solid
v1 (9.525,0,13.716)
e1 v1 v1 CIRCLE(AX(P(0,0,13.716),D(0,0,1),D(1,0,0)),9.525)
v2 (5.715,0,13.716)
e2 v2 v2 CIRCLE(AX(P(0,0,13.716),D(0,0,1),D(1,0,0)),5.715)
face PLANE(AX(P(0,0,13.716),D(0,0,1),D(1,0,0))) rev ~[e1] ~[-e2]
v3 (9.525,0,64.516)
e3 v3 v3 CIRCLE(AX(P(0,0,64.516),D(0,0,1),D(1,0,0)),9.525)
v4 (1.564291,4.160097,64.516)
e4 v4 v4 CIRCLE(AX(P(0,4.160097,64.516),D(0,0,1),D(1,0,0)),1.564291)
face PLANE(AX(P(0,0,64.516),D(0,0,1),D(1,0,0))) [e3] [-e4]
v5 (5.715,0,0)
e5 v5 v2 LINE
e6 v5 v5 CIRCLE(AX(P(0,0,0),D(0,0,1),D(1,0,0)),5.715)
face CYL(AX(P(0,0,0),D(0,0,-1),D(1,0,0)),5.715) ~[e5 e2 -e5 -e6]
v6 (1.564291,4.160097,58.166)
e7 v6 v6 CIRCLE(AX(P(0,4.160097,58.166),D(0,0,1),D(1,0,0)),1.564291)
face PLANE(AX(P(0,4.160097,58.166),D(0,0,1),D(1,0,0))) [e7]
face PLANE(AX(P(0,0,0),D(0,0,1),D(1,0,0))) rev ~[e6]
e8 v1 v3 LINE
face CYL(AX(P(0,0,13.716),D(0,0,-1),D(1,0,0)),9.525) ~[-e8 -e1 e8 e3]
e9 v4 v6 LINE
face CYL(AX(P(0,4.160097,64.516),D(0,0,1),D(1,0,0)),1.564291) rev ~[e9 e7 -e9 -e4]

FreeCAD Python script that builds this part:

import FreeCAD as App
import Part
import Sketcher
from FreeCAD import Vector
Q = App.Units.Quantity

doc = App.newDocument("Part")
body = doc.addObject("PartDesign::Body", "Body")

sketch1 = body.newObject("Sketcher::SketchObject", "Sketch")
sketch1.AttachmentSupport = (doc.getObject("XY_Plane"), [""])
sketch1.MapMode = "FlatFace"
sketch1.addGeometry(Part.Circle(Vector(0, 0, 0), Vector(0, 0, 1), 6), False)
sketch1.addConstraint(Sketcher.Constraint("Coincident", 0, 3, -1, 1))
sketch1.addConstraint(Sketcher.Constraint("Diameter", 0, Q("0.45 in")))
pad1 = body.newObject("PartDesign::Pad", "Pad")
pad1.Profile = sketch1
pad1.Length = Q("0.54 in")

sketch2 = body.newObject("Sketcher::SketchObject", "Sketch001")
sketch2.AttachmentSupport = (doc.getObject("XY_Plane"), [""])
sketch2.MapMode = "FlatFace"
sketch2.AttachmentOffset = App.Placement(Vector(0, 0, 0.54 * 25.4), App.Rotation())
sketch2.addGeometry(Part.Circle(Vector(0, 0, 0), Vector(0, 0, 1), 10), False)
sketch2.addConstraint(Sketcher.Constraint("Coincident", 0, 3, -1, 1))
sketch2.addConstraint(Sketcher.Constraint("Diameter", 0, Q("0.75 in")))
pad2 = body.newObject("PartDesign::Pad", "Pad001")
pad2.Profile = sketch2
pad2.Length = Q("2 in")

sketch3 = body.newObject("Sketcher::SketchObject", "Sketch002")
sketch3.AttachmentSupport = (doc.getObject("XY_Plane"), [""])
sketch3.MapMode = "FlatFace"
sketch3.AttachmentOffset = App.Placement(Vector(0, 0, 2.54 * 25.4), App.Rotation())
sketch3.addGeometry(Part.Circle(Vector(0, 4.2, 0), Vector(0, 0, 1), 1.6), False)
sketch3.addConstraint(Sketcher.Constraint("PointOnObject", 0, 3, -2))
sketch3.addConstraint(Sketcher.Constraint("Diameter", 0, 3.128582))
sketch3.addConstraint(Sketcher.Constraint("DistanceY", -1, 1, 0, 3, 4.160097))
pocket1 = body.newObject("PartDesign::Pocket", "Pocket")
pocket1.Profile = sketch3
pocket1.Length = Q("0.25 in")

doc.recompute()
